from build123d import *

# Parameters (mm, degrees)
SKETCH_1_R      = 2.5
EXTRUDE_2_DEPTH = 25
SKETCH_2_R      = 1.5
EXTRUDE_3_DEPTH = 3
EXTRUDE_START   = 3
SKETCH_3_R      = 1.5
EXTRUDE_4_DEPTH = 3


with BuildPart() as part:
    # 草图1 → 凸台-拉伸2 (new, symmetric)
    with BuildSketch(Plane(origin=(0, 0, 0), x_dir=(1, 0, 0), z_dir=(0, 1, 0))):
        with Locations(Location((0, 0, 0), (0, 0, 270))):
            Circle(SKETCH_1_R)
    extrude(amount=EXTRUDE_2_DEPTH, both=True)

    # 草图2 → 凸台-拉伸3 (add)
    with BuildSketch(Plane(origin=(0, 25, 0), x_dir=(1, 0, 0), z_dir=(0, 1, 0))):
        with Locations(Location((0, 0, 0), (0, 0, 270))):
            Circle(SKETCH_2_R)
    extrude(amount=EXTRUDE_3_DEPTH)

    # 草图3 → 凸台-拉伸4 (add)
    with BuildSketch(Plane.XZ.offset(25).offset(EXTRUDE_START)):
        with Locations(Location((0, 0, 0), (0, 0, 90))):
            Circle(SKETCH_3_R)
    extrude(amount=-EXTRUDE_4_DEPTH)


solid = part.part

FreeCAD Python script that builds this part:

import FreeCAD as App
import Part
import Sketcher
from FreeCAD import Vector
Q = App.Units.Quantity

doc = App.newDocument("Part")
body = doc.addObject("PartDesign::Body", "Body")

sketch1 = doc.addObject("Sketcher::SketchObject", "Sketch")
body.addObject(sketch1)
sketch1.AttachmentSupport = (doc.XZ_Plane, [""])
sketch1.MapMode = "FlatFace"
sketch1.addGeometry(Part.Circle(Vector(0, 0, 0), Vector(0, 0, 1), 2.5), False)
sketch1.addConstraint([
    Sketcher.Constraint("Coincident", 0, 3, -1, 1),
    Sketcher.Constraint("Diameter", 0, Q("5 mm")),
])
pad1 = doc.addObject("PartDesign::Pad", "Pad")
body.addObject(pad1)
pad1.Profile = sketch1
pad1.Length = 50
pad1.Midplane = True

sketch2 = doc.addObject("Sketcher::SketchObject", "Sketch001")
body.addObject(sketch2)
sketch2.AttachmentSupport = (doc.XZ_Plane, [""])
sketch2.MapMode = "FlatFace"
sketch2.AttachmentOffset = App.Placement(Vector(0, 0, -25), App.Rotation())
sketch2.addGeometry(Part.Circle(Vector(0, 0, 0), Vector(0, 0, 1), 1.5), False)
sketch2.addConstraint([
    Sketcher.Constraint("Coincident", 0, 3, -1, 1),
    Sketcher.Constraint("Diameter", 0, Q("3 mm")),
])
pad2 = doc.addObject("PartDesign::Pad", "Pad001")
body.addObject(pad2)
pad2.Profile = sketch2
pad2.Length = 3
pad2.Reversed = True

sketch3 = doc.addObject("Sketcher::SketchObject", "Sketch002")
body.addObject(sketch3)
sketch3.AttachmentSupport = (doc.XZ_Plane, [""])
sketch3.MapMode = "FlatFace"
sketch3.AttachmentOffset = App.Placement(Vector(0, 0, 28), App.Rotation())
sketch3.addGeometry(Part.Circle(Vector(0, 0, 0), Vector(0, 0, 1), 1.5), False)
sketch3.addConstraint([
    Sketcher.Constraint("Coincident", 0, 3, -1, 1),
    Sketcher.Constraint("Diameter", 0, Q("3 mm")),
])
pad3 = doc.addObject("PartDesign::Pad", "Pad002")
body.addObject(pad3)
pad3.Profile = sketch3
pad3.Length = 3
pad3.Reversed = True

doc.recompute()
